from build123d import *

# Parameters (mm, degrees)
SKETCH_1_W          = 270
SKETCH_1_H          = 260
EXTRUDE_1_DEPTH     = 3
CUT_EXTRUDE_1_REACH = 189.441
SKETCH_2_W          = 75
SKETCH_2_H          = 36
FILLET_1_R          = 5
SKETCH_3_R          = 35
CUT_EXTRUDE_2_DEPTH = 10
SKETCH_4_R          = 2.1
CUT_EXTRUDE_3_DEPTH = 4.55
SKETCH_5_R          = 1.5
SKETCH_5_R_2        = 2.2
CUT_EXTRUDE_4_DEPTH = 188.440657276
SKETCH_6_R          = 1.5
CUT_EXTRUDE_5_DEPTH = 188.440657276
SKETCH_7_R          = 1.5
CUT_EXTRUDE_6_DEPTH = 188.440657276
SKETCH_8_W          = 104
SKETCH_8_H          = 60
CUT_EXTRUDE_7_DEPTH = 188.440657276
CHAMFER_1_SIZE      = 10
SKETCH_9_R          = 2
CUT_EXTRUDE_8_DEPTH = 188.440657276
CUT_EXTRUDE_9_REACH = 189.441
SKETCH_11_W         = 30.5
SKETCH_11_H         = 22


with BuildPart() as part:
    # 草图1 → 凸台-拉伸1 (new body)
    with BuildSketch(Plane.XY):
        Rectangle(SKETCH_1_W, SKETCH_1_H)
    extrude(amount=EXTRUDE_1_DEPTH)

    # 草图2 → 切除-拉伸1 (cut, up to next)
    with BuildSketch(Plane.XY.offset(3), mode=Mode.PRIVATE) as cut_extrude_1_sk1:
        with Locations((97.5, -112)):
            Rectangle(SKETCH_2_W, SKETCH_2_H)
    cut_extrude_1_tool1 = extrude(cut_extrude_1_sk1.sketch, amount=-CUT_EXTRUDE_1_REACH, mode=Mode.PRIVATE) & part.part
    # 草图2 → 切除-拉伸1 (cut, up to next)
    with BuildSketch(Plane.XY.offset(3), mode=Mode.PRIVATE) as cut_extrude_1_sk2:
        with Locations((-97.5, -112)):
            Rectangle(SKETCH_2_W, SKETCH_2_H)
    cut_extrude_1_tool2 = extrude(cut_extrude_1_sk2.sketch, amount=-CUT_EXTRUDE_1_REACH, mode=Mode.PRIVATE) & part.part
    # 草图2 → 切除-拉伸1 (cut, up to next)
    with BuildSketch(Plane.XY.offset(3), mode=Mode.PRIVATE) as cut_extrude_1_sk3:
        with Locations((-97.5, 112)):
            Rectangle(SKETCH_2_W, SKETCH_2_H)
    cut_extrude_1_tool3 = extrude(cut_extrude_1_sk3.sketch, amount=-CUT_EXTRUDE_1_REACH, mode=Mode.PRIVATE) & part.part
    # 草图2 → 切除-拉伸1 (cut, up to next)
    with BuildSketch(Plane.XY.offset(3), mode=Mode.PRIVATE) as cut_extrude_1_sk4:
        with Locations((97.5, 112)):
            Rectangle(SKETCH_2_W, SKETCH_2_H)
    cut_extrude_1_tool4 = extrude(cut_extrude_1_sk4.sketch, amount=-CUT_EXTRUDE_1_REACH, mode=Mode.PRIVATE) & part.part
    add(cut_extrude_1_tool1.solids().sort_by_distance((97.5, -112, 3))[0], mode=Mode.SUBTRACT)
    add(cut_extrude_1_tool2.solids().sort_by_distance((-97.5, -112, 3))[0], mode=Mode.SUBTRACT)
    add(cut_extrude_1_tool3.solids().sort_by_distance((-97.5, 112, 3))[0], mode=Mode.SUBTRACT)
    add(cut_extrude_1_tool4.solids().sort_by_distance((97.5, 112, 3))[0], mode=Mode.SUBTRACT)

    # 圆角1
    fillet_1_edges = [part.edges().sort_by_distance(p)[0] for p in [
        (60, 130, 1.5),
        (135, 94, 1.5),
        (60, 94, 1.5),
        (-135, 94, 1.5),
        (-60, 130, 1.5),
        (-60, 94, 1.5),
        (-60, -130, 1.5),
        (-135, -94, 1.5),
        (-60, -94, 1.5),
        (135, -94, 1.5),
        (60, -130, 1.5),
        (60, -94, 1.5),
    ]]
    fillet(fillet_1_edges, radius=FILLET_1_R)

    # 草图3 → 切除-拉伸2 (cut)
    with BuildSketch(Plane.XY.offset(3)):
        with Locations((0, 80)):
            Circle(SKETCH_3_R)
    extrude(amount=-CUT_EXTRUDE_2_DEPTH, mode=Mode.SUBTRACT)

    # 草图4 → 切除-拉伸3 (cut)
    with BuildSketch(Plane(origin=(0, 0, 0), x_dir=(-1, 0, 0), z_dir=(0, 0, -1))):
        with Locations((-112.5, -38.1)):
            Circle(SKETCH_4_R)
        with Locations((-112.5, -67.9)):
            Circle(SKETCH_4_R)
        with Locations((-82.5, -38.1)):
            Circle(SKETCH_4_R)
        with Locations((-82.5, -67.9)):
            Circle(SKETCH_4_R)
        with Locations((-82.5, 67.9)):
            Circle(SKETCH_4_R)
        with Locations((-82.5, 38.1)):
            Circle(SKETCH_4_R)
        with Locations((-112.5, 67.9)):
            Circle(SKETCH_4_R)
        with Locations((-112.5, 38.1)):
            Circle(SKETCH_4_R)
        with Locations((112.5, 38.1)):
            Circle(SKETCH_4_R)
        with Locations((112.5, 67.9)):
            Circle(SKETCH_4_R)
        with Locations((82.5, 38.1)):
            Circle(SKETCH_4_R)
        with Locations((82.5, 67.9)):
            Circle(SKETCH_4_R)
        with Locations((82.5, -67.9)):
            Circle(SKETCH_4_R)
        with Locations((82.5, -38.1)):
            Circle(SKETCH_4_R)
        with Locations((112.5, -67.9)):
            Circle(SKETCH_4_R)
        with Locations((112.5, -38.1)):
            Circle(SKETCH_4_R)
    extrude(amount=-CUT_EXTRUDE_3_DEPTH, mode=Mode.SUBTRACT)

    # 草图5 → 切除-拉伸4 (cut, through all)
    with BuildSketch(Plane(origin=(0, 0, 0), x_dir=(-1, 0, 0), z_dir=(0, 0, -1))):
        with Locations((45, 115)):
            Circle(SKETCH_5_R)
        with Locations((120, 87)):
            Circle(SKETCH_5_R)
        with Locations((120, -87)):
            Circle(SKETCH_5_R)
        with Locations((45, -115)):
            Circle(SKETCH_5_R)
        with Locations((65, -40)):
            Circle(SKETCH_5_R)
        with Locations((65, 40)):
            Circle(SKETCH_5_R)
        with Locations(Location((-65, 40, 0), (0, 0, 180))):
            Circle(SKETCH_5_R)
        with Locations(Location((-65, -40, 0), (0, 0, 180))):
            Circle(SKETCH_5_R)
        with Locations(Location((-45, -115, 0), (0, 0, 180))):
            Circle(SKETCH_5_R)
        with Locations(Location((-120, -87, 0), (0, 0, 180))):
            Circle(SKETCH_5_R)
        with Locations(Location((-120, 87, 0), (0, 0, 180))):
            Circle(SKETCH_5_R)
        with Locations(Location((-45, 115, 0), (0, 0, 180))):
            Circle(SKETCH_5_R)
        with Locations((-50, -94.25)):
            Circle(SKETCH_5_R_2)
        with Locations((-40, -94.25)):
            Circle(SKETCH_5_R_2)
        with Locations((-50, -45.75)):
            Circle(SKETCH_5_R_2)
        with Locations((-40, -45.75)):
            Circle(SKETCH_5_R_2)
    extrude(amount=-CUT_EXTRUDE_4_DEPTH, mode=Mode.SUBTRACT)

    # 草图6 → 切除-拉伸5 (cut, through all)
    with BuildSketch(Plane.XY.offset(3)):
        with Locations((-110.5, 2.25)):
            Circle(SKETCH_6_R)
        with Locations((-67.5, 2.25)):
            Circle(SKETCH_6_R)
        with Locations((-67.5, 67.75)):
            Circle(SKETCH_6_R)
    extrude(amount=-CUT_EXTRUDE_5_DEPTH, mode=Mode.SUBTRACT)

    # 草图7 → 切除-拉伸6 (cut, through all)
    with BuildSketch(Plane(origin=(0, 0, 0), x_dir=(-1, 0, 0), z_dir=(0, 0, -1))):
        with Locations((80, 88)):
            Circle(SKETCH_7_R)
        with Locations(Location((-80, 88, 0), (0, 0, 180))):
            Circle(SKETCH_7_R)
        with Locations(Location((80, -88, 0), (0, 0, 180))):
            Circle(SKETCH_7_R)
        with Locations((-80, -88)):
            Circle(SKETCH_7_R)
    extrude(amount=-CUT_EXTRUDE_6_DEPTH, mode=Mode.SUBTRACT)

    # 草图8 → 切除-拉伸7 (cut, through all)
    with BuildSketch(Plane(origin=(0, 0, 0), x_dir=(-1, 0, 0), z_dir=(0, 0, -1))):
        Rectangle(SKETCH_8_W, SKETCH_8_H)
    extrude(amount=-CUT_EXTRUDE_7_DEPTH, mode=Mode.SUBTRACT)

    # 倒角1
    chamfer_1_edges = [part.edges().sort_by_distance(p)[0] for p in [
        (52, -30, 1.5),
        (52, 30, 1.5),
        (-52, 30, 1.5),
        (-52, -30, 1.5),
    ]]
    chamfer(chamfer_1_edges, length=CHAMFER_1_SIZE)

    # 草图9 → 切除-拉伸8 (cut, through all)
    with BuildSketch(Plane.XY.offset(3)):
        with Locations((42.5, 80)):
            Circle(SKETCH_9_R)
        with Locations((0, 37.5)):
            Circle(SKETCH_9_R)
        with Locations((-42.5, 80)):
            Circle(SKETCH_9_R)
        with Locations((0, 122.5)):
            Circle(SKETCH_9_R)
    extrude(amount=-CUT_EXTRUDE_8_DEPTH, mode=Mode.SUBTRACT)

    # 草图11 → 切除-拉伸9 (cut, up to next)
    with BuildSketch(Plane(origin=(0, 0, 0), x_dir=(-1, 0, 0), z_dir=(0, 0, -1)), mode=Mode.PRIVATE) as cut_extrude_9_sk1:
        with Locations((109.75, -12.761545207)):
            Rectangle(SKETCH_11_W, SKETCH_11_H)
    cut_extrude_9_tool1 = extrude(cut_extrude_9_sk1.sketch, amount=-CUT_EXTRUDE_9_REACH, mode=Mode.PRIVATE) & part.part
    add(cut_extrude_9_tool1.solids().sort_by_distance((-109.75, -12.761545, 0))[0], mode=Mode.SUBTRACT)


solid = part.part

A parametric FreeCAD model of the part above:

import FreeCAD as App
import Part
import Sketcher
from FreeCAD import Vector


def edges_at(feature, points):
    """Names of the edges that pass closest to the given points."""
    edges = feature.Shape.Edges
    near = lambda p: min(range(len(edges)), key=lambda i: edges[i].distToShape(Part.Vertex(*p))[0])
    return sorted({f"Edge{near(p) + 1}" for p in points})

doc = App.newDocument("Part")
body = doc.addObject("PartDesign::Body", "Body")

sketch1 = doc.addObject("Sketcher::SketchObject", "Sketch")
body.addObject(sketch1)
sketch1.AttachmentSupport = (doc.XY_Plane, [""])
sketch1.MapMode = "FlatFace"
sketch1.addGeometry([
    Part.LineSegment(Vector(-135, 130, 0), Vector(-135, -130, 0)),
    Part.LineSegment(Vector(-135, -130, 0), Vector(135, -130, 0)),
    Part.LineSegment(Vector(135, -130, 0), Vector(135, 130, 0)),
    Part.LineSegment(Vector(135, 130, 0), Vector(-135, 130, 0)),
], False)
sketch1.addConstraint([
    Sketcher.Constraint("Coincident", 0, 2, 1, 1),
    Sketcher.Constraint("Coincident", 1, 2, 2, 1),
    Sketcher.Constraint("Coincident", 2, 2, 3, 1),
    Sketcher.Constraint("Coincident", 3, 2, 0, 1),
    Sketcher.Constraint("Vertical", 0),
    Sketcher.Constraint("Horizontal", 1),
    Sketcher.Constraint("Vertical", 2),
    Sketcher.Constraint("Horizontal", 3),
    Sketcher.Constraint("Symmetric", 0, 2, 2, 2, -1, 1),
    Sketcher.Constraint("DistanceX", 1, 1, 1, 2, 270.0),
    Sketcher.Constraint("DistanceY", 0, 2, 0, 1, 260.0),
])
pad1 = doc.addObject("PartDesign::Pad", "Pad")
body.addObject(pad1)
pad1.Profile = sketch1
pad1.Length = 3

sketch2 = doc.addObject("Sketcher::SketchObject", "Sketch001")
body.addObject(sketch2)
sketch2.AttachmentSupport = (doc.XY_Plane, [""])
sketch2.MapMode = "FlatFace"
sketch2.AttachmentOffset = App.Placement(Vector(0, 0, 3), App.Rotation())
sketch2.addGeometry([
    Part.LineSegment(Vector(60, -94, 0), Vector(60, -130, 0)),
    Part.LineSegment(Vector(60, -130, 0), Vector(135, -130, 0)),
    Part.LineSegment(Vector(135, -130, 0), Vector(135, -94, 0)),
    Part.LineSegment(Vector(135, -94, 0), Vector(60, -94, 0)),
], False)
sketch2.addConstraint([
    Sketcher.Constraint("Coincident", 0, 2, 1, 1),
    Sketcher.Constraint("Coincident", 1, 2, 2, 1),
    Sketcher.Constraint("Coincident", 2, 2, 3, 1),
    Sketcher.Constraint("Coincident", 3, 2, 0, 1),
    Sketcher.Constraint("Vertical", 0),
    Sketcher.Constraint("Horizontal", 1),
    Sketcher.Constraint("Vertical", 2),
    Sketcher.Constraint("Horizontal", 3),
    Sketcher.Constraint("DistanceX", 1, 1, 1, 2, 75.0),
    Sketcher.Constraint("DistanceY", 0, 2, 0, 1, 36.0),
    Sketcher.Constraint("DistanceX", -1, 1, 0, 2, 60.0),
    Sketcher.Constraint("DistanceY", 0, 2, -1, 1, 130.0),
])
pocket1 = doc.addObject("PartDesign::Pocket", "Pocket")
body.addObject(pocket1)
pocket1.Profile = sketch2
pocket1.Type = "UpToFirst"

sketch3 = doc.addObject("Sketcher::SketchObject", "Sketch002")
body.addObject(sketch3)
sketch3.AttachmentSupport = (doc.XY_Plane, [""])
sketch3.MapMode = "FlatFace"
sketch3.AttachmentOffset = App.Placement(Vector(0, 0, 3), App.Rotation())
sketch3.addGeometry([
    Part.LineSegment(Vector(-135, -94, 0), Vector(-135, -130, 0)),
    Part.LineSegment(Vector(-135, -130, 0), Vector(-60, -130, 0)),
    Part.LineSegment(Vector(-60, -130, 0), Vector(-60, -94, 0)),
    Part.LineSegment(Vector(-60, -94, 0), Vector(-135, -94, 0)),
], False)
sketch3.addConstraint([
    Sketcher.Constraint("Coincident", 0, 2, 1, 1),
    Sketcher.Constraint("Coincident", 1, 2, 2, 1),
    Sketcher.Constraint("Coincident", 2, 2, 3, 1),
    Sketcher.Constraint("Coincident", 3, 2, 0, 1),
    Sketcher.Constraint("Vertical", 0),
    Sketcher.Constraint("Horizontal", 1),
    Sketcher.Constraint("Vertical", 2),
    Sketcher.Constraint("Horizontal", 3),
    Sketcher.Constraint("DistanceX", 1, 1, 1, 2, 75.0),
    Sketcher.Constraint("DistanceY", 0, 2, 0, 1, 36.0),
    Sketcher.Constraint("DistanceX", 0, 2, -1, 1, 135.0),
    Sketcher.Constraint("DistanceY", 0, 2, -1, 1, 130.0),
])
pocket2 = doc.addObject("PartDesign::Pocket", "Pocket001")
body.addObject(pocket2)
pocket2.Profile = sketch3
pocket2.Type = "UpToFirst"

sketch4 = doc.addObject("Sketcher::SketchObject", "Sketch003")
body.addObject(sketch4)
sketch4.AttachmentSupport = (doc.XY_Plane, [""])
sketch4.MapMode = "FlatFace"
sketch4.AttachmentOffset = App.Placement(Vector(0, 0, 3), App.Rotation())
sketch4.addGeometry([
    Part.LineSegment(Vector(-135, 130, 0), Vector(-135, 94, 0)),
    Part.LineSegment(Vector(-135, 94, 0), Vector(-60, 94, 0)),
    Part.LineSegment(Vector(-60, 94, 0), Vector(-60, 130, 0)),
    Part.LineSegment(Vector(-60, 130, 0), Vector(-135, 130, 0)),
], False)
sketch4.addConstraint([
    Sketcher.Constraint("Coincident", 0, 2, 1, 1),
    Sketcher.Constraint("Coincident", 1, 2, 2, 1),
    Sketcher.Constraint("Coincident", 2, 2, 3, 1),
    Sketcher.Constraint("Coincident", 3, 2, 0, 1),
    Sketcher.Constraint("Vertical", 0),
    Sketcher.Constraint("Horizontal", 1),
    Sketcher.Constraint("Vertical", 2),
    Sketcher.Constraint("Horizontal", 3),
    Sketcher.Constraint("DistanceX", 1, 1, 1, 2, 75.0),
    Sketcher.Constraint("DistanceY", 0, 2, 0, 1, 36.0),
    Sketcher.Constraint("DistanceX", 0, 2, -1, 1, 135.0),
    Sketcher.Constraint("DistanceY", -1, 1, 0, 2, 94.0),
])
pocket3 = doc.addObject("PartDesign::Pocket", "Pocket002")
body.addObject(pocket3)
pocket3.Profile = sketch4
pocket3.Type = "UpToFirst"

sketch5 = doc.addObject("Sketcher::SketchObject", "Sketch004")
body.addObject(sketch5)
sketch5.AttachmentSupport = (doc.XY_Plane, [""])
sketch5.MapMode = "FlatFace"
sketch5.AttachmentOffset = App.Placement(Vector(0, 0, 3), App.Rotation())
sketch5.addGeometry([
    Part.LineSegment(Vector(60, 130, 0), Vector(60, 94, 0)),
    Part.LineSegment(Vector(60, 94, 0), Vector(135, 94, 0)),
    Part.LineSegment(Vector(135, 94, 0), Vector(135, 130, 0)),
    Part.LineSegment(Vector(135, 130, 0), Vector(60, 130, 0)),
], False)
sketch5.addConstraint([
    Sketcher.Constraint("Coincident", 0, 2, 1, 1),
    Sketcher.Constraint("Coincident", 1, 2, 2, 1),
    Sketcher.Constraint("Coincident", 2, 2, 3, 1),
    Sketcher.Constraint("Coincident", 3, 2, 0, 1),
    Sketcher.Constraint("Vertical", 0),
    Sketcher.Constraint("Horizontal", 1),
    Sketcher.Constraint("Vertical", 2),
    Sketcher.Constraint("Horizontal", 3),
    Sketcher.Constraint("DistanceX", 1, 1, 1, 2, 75.0),
    Sketcher.Constraint("DistanceY", 0, 2, 0, 1, 36.0),
    Sketcher.Constraint("DistanceX", -1, 1, 0, 2, 60.0),
    Sketcher.Constraint("DistanceY", -1, 1, 0, 2, 94.0),
])
pocket4 = doc.addObject("PartDesign::Pocket", "Pocket003")
body.addObject(pocket4)
pocket4.Profile = sketch5
pocket4.Type = "UpToFirst"
doc.recompute()

fillet = doc.addObject("PartDesign::Fillet", "Fillet")
body.addObject(fillet)
fillet.Base = (pocket4, edges_at(pocket4, [
    (60, 130, 1.5),
    (135, 94, 1.5),
    (60, 94, 1.5),
    (-135, 94, 1.5),
    (-60, 130, 1.5),
    (-60, 94, 1.5),
    (-60, -130, 1.5),
    (-135, -94, 1.5),
    (-60, -94, 1.5),
    (135, -94, 1.5),
    (60, -130, 1.5),
    (60, -94, 1.5),
]))
fillet.Radius = 5

sketch6 = doc.addObject("Sketcher::SketchObject", "Sketch005")
body.addObject(sketch6)
sketch6.AttachmentSupport = (doc.XY_Plane, [""])
sketch6.MapMode = "FlatFace"
sketch6.AttachmentOffset = App.Placement(Vector(0, 0, 3), App.Rotation())
sketch6.addGeometry(Part.Circle(Vector(0, 80, 0), Vector(0, 0, 1), 35), False)
sketch6.addConstraint([
    Sketcher.Constraint("PointOnObject", 0, 3, -2),
    Sketcher.Constraint("Diameter", 0, 70.0),
    Sketcher.Constraint("DistanceY", -1, 1, 0, 3, 80.0),
])
pocket5 = doc.addObject("PartDesign::Pocket", "Pocket004")
body.addObject(pocket5)
pocket5.Profile = sketch6
pocket5.Length = 10

sketch7 = doc.addObject("Sketcher::SketchObject", "Sketch006")
body.addObject(sketch7)
sketch7.AttachmentSupport = (doc.XY_Plane, [""])
sketch7.MapMode = "FlatFace"
sketch7.addGeometry([
    Part.Circle(Vector(112.5, -38.1, 0), Vector(0, 0, 1), 2.1),
    Part.Circle(Vector(112.5, -67.9, 0), Vector(0, 0, 1), 2.1),
    Part.Circle(Vector(82.5, -38.1, 0), Vector(0, 0, 1), 2.1),
    Part.Circle(Vector(82.5, -67.9, 0), Vector(0, 0, 1), 2.1),
    Part.Circle(Vector(82.5, 67.9, 0), Vector(0, 0, 1), 2.1),
    Part.Circle(Vector(82.5, 38.1, 0), Vector(0, 0, 1), 2.1),
    Part.Circle(Vector(112.5, 67.9, 0), Vector(0, 0, 1), 2.1),
    Part.Circle(Vector(112.5, 38.1, 0), Vector(0, 0, 1), 2.1),
    Part.Circle(Vector(-112.5, 38.1, 0), Vector(0, 0, 1), 2.1),
    Part.Circle(Vector(-112.5, 67.9, 0), Vector(0, 0, 1), 2.1),
    Part.Circle(Vector(-82.5, 38.1, 0), Vector(0, 0, 1), 2.1),
    Part.Circle(Vector(-82.5, 67.9, 0), Vector(0, 0, 1), 2.1),
    Part.Circle(Vector(-82.5, -67.9, 0), Vector(0, 0, 1), 2.1),
    Part.Circle(Vector(-82.5, -38.1, 0), Vector(0, 0, 1), 2.1),
    Part.Circle(Vector(-112.5, -67.9, 0), Vector(0, 0, 1), 2.1),
    Part.Circle(Vector(-112.5, -38.1, 0), Vector(0, 0, 1), 2.1),
], False)
sketch7.addConstraint([
    Sketcher.Constraint("Equal", 0, 1),
    Sketcher.Constraint("Equal", 1, 2),
    Sketcher.Constraint("Equal", 2, 3),
    Sketcher.Constraint("Equal", 3, 4),
    Sketcher.Constraint("Equal", 4, 5),
    Sketcher.Constraint("Equal", 5, 6),
    Sketcher.Constraint("Equal", 6, 7),
    Sketcher.Constraint("Equal", 7, 8),
    Sketcher.Constraint("Equal", 8, 9),
    Sketcher.Constraint("Equal", 9, 10),
    Sketcher.Constraint("Equal", 10, 11),
    Sketcher.Constraint("Equal", 11, 12),
    Sketcher.Constraint("Equal", 12, 13),
    Sketcher.Constraint("Equal", 13, 14),
    Sketcher.Constraint("Equal", 14, 15),
    Sketcher.Constraint("Symmetric", 0, 3, 8, 3, -1, 1),
    Sketcher.Constraint("Symmetric", 1, 3, 9, 3, -1, 1),
    Sketcher.Constraint("Symmetric", 2, 3, 10, 3, -1, 1),
    Sketcher.Constraint("Symmetric", 3, 3, 11, 3, -1, 1),
    Sketcher.Constraint("Symmetric", 4, 3, 12, 3, -1, 1),
    Sketcher.Constraint("Symmetric", 5, 3, 13, 3, -1, 1),
    Sketcher.Constraint("Symmetric", 6, 3, 14, 3, -1, 1),
    Sketcher.Constraint("Symmetric", 7, 3, 15, 3, -1, 1),
    Sketcher.Constraint("Symmetric", 7, 3, 8, 3, -2),
    Sketcher.Constraint("Symmetric", 6, 3, 9, 3, -2),
    Sketcher.Constraint("Symmetric", 5, 3, 10, 3, -2),
    Sketcher.Constraint("Symmetric", 4, 3, 11, 3, -2),
    Sketcher.Constraint("Horizontal", 0, 3, 2, 3),
    Sketcher.Constraint("Horizontal", 1, 3, 3, 3),
    Sketcher.Constraint("Vertical", 0, 3, 1, 3),
    Sketcher.Constraint("Vertical", 2, 3, 3, 3),
    Sketcher.Constraint("Diameter", 0, 4.2),
    Sketcher.Constraint("DistanceX", 2, 3, 0, 3, 30.0),
    Sketcher.Constraint("DistanceY", 2, 3, 4, 3, 106.0),
    Sketcher.Constraint("DistanceX", 8, 3, 5, 3, 195.0),
    Sketcher.Constraint("DistanceY", 0, 3, -1, 1, 38.1),
])
pocket6 = doc.addObject("PartDesign::Pocket", "Pocket005")
body.addObject(pocket6)
pocket6.Profile = sketch7
pocket6.Length = 4.55
pocket6.Reversed = True

sketch8 = doc.addObject("Sketcher::SketchObject", "Sketch007")
body.addObject(sketch8)
sketch8.AttachmentSupport = (doc.XY_Plane, [""])
sketch8.MapMode = "FlatFace"
sketch8.addGeometry([
    Part.Circle(Vector(-45, 115, 0), Vector(0, 0, 1), 1.5),
    Part.Circle(Vector(-120, 87, 0), Vector(0, 0, 1), 1.5),
    Part.Circle(Vector(-120, -87, 0), Vector(0, 0, 1), 1.5),
    Part.Circle(Vector(-45, -115, 0), Vector(0, 0, 1), 1.5),
    Part.Circle(Vector(-65, -40, 0), Vector(0, 0, 1), 1.5),
    Part.Circle(Vector(-65, 40, 0), Vector(0, 0, 1), 1.5),
    Part.Circle(Vector(65, 40, 0), Vector(0, 0, 1), 1.5),
    Part.Circle(Vector(65, -40, 0), Vector(0, 0, 1), 1.5),
    Part.Circle(Vector(45, -115, 0), Vector(0, 0, 1), 1.5),
    Part.Circle(Vector(120, -87, 0), Vector(0, 0, 1), 1.5),
    Part.Circle(Vector(120, 87, 0), Vector(0, 0, 1), 1.5),
    Part.Circle(Vector(45, 115, 0), Vector(0, 0, 1), 1.5),
    Part.Circle(Vector(50, -94.2, 0), Vector(0, 0, 1), 2.2),
    Part.Circle(Vector(40, -94.2, 0), Vector(0, 0, 1), 2.2),
    Part.Circle(Vector(50, -45.8, 0), Vector(0, 0, 1), 2.2),
    Part.Circle(Vector(40, -45.8, 0), Vector(0, 0, 1), 2.2),
], False)
sketch8.addConstraint([
    Sketcher.Constraint("Equal", 0, 1),
    Sketcher.Constraint("Equal", 1, 2),
    Sketcher.Constraint("Equal", 2, 3),
    Sketcher.Constraint("Equal", 3, 4),
    Sketcher.Constraint("Equal", 4, 5),
    Sketcher.Constraint("Equal", 5, 6),
    Sketcher.Constraint("Equal", 6, 7),
    Sketcher.Constraint("Equal", 7, 8),
    Sketcher.Constraint("Equal", 8, 9),
    Sketcher.Constraint("Equal", 9, 10),
    Sketcher.Constraint("Equal", 10, 11),
    Sketcher.Constraint("Equal", 12, 13),
    Sketcher.Constraint("Equal", 13, 14),
    Sketcher.Constraint("Equal", 14, 15),
    Sketcher.Constraint("Symmetric", 4, 3, 6, 3, -1, 1),
    Sketcher.Constraint("Symmetric", 5, 3, 7, 3, -1, 1),
    Sketcher.Constraint("Symmetric", 0, 3, 8, 3, -1, 1),
    Sketcher.Constraint("Symmetric", 1, 3, 9, 3, -1, 1),
    Sketcher.Constraint("Symmetric", 2, 3, 10, 3, -1, 1),
    Sketcher.Constraint("Symmetric", 3, 3, 11, 3, -1, 1),
    Sketcher.Constraint("Symmetric", 5, 3, 6, 3, -2),
    Sketcher.Constraint("Symmetric", 3, 3, 8, 3, -2),
    Sketcher.Constraint("Symmetric", 2, 3, 9, 3, -2),
    Sketcher.Constraint("Horizontal", 12, 3, 13, 3),
    Sketcher.Constraint("Horizontal", 14, 3, 15, 3),
    Sketcher.Constraint("Vertical", 12, 3, 14, 3),
    Sketcher.Constraint("Vertical", 13, 3, 15, 3),
    Sketcher.Constraint("Diameter", 0, 3.0),
    Sketcher.Constraint("Diameter", 12, 4.4),
    Sketcher.Constraint("DistanceX", 0, 3, -1, 1, 45.0),
    Sketcher.Constraint("DistanceY", -1, 1, 0, 3, 115.0),
    Sketcher.Constraint("DistanceX", 1, 3, -1, 1, 120.0),
    Sketcher.Constraint("DistanceY", -1, 1, 1, 3, 87.0),
    Sketcher.Constraint("DistanceX", 4, 3, -1, 1, 65.0),
    Sketcher.Constraint("DistanceY", 4, 3, -1, 1, 40.0),
    Sketcher.Constraint("DistanceX", -1, 1, 12, 3, 50.0),
    Sketcher.Constraint("DistanceX", -1, 1, 13, 3, 40.0),
    Sketcher.Constraint("DistanceY", 12, 3, 14, 3, 48.5),
    Sketcher.Constraint("DistanceY", 12, 3, -1, 1, 94.25),
])
pocket7 = doc.addObject("PartDesign::Pocket", "Pocket006")
body.addObject(pocket7)
pocket7.Profile = sketch8
pocket7.Type = "ThroughAll"
pocket7.Reversed = True

sketch9 = doc.addObject("Sketcher::SketchObject", "Sketch008")
body.addObject(sketch9)
sketch9.AttachmentSupport = (doc.XY_Plane, [""])
sketch9.MapMode = "FlatFace"
sketch9.AttachmentOffset = App.Placement(Vector(0, 0, 3), App.Rotation())
sketch9.addGeometry([
    Part.Circle(Vector(-110.5, 2.2, 0), Vector(0, 0, 1), 1.5),
    Part.Circle(Vector(-67.5, 2.2, 0), Vector(0, 0, 1), 1.5),
    Part.Circle(Vector(-67.5, 67.8, 0), Vector(0, 0, 1), 1.5),
], False)
sketch9.addConstraint([
    Sketcher.Constraint("Equal", 0, 1),
    Sketcher.Constraint("Equal", 1, 2),
    Sketcher.Constraint("Horizontal", 0, 3, 1, 3),
    Sketcher.Constraint("Vertical", 1, 3, 2, 3),
    Sketcher.Constraint("Diameter", 0, 3.0),
    Sketcher.Constraint("DistanceX", 0, 3, 1, 3, 43.0),
    Sketcher.Constraint("DistanceX", 0, 3, -1, 1, 110.5),
    Sketcher.Constraint("DistanceY", 1, 3, 2, 3, 65.5),
    Sketcher.Constraint("DistanceY", -1, 1, 0, 3, 2.25),
])
pocket8 = doc.addObject("PartDesign::Pocket", "Pocket007")
body.addObject(pocket8)
pocket8.Profile = sketch9
pocket8.Type = "ThroughAll"

sketch10 = doc.addObject("Sketcher::SketchObject", "Sketch009")
body.addObject(sketch10)
sketch10.AttachmentSupport = (doc.XY_Plane, [""])
sketch10.MapMode = "FlatFace"
sketch10.addGeometry([
    Part.Circle(Vector(-80, 88, 0), Vector(0, 0, 1), 1.5),
    Part.Circle(Vector(80, 88, 0), Vector(0, 0, 1), 1.5),
    Part.Circle(Vector(-80, -88, 0), Vector(0, 0, 1), 1.5),
    Part.Circle(Vector(80, -88, 0), Vector(0, 0, 1), 1.5),
], False)
sketch10.addConstraint([
    Sketcher.Constraint("Equal", 0, 1),
    Sketcher.Constraint("Equal", 1, 2),
    Sketcher.Constraint("Equal", 2, 3),
    Sketcher.Constraint("Symmetric", 1, 3, 2, 3, -1, 1),
    Sketcher.Constraint("Symmetric", 0, 3, 3, 3, -1, 1),
    Sketcher.Constraint("Symmetric", 0, 3, 1, 3, -2),
    Sketcher.Constraint("Diameter", 0, 3.0),
    Sketcher.Constraint("DistanceX", 0, 3, -1, 1, 80.0),
    Sketcher.Constraint("DistanceY", -1, 1, 0, 3, 88.0),
])
pocket9 = doc.addObject("PartDesign::Pocket", "Pocket008")
body.addObject(pocket9)
pocket9.Profile = sketch10
pocket9.Type = "ThroughAll"
pocket9.Reversed = True

sketch11 = doc.addObject("Sketcher::SketchObject", "Sketch010")
body.addObject(sketch11)
sketch11.AttachmentSupport = (doc.XY_Plane, [""])
sketch11.MapMode = "FlatFace"
sketch11.addGeometry([
    Part.LineSegment(Vector(52, 30, 0), Vector(52, -30, 0)),
    Part.LineSegment(Vector(52, -30, 0), Vector(-52, -30, 0)),
    Part.LineSegment(Vector(-52, -30, 0), Vector(-52, 30, 0)),
    Part.LineSegment(Vector(-52, 30, 0), Vector(52, 30, 0)),
], False)
sketch11.addConstraint([
    Sketcher.Constraint("Coincident", 0, 2, 1, 1),
    Sketcher.Constraint("Coincident", 1, 2, 2, 1),
    Sketcher.Constraint("Coincident", 2, 2, 3, 1),
    Sketcher.Constraint("Coincident", 3, 2, 0, 1),
    Sketcher.Constraint("Vertical", 0),
    Sketcher.Constraint("Horizontal", 1),
    Sketcher.Constraint("Vertical", 2),
    Sketcher.Constraint("Horizontal", 3),
    Sketcher.Constraint("Symmetric", 0, 2, 2, 2, -1, 1),
    Sketcher.Constraint("DistanceX", 1, 2, 1, 1, 104.0),
    Sketcher.Constraint("DistanceY", 0, 2, 0, 1, 60.0),
])
pocket10 = doc.addObject("PartDesign::Pocket", "Pocket009")
body.addObject(pocket10)
pocket10.Profile = sketch11
pocket10.Type = "ThroughAll"
pocket10.Reversed = True
doc.recompute()

chamfer = doc.addObject("PartDesign::Chamfer", "Chamfer")
body.addObject(chamfer)
chamfer.Base = (pocket10, edges_at(pocket10, [
    (52, -30, 1.5),
    (52, 30, 1.5),
    (-52, 30, 1.5),
    (-52, -30, 1.5),
]))
chamfer.Size = 10

sketch12 = doc.addObject("Sketcher::SketchObject", "Sketch011")
body.addObject(sketch12)
sketch12.AttachmentSupport = (doc.XY_Plane, [""])
sketch12.MapMode = "FlatFace"
sketch12.AttachmentOffset = App.Placement(Vector(0, 0, 3), App.Rotation())
sketch12.addGeometry([
    Part.Circle(Vector(42.5, 80, 0), Vector(0, 0, 1), 2),
    Part.Circle(Vector(0, 37.5, 0), Vector(0, 0, 1), 2),
    Part.Circle(Vector(-42.5, 80, 0), Vector(0, 0, 1), 2),
    Part.Circle(Vector(0, 122.5, 0), Vector(0, 0, 1), 2),
], False)
sketch12.addConstraint([
    Sketcher.Constraint("Equal", 0, 1),
    Sketcher.Constraint("Equal", 1, 2),
    Sketcher.Constraint("Equal", 2, 3),
    Sketcher.Constraint("Symmetric", 0, 3, 2, 3, -2),
    Sketcher.Constraint("PointOnObject", 1, 3, -2),
    Sketcher.Constraint("PointOnObject", 3, 3, -2),
    Sketcher.Constraint("Diameter", 0, 4.0),
    Sketcher.Constraint("DistanceY", -1, 1, 0, 3, 80.0),
    Sketcher.Constraint("DistanceX", 2, 3, 0, 3, 85.0),
    Sketcher.Constraint("DistanceY", 1, 3, 3, 3, 85.0),
    Sketcher.Constraint("DistanceY", -1, 1, 1, 3, 37.5),
])
pocket11 = doc.addObject("PartDesign::Pocket", "Pocket010")
body.addObject(pocket11)
pocket11.Profile = sketch12
pocket11.Type = "ThroughAll"

sketch13 = doc.addObject("Sketcher::SketchObject", "Sketch012")
body.addObject(sketch13)
sketch13.AttachmentSupport = (doc.XY_Plane, [""])
sketch13.MapMode = "FlatFace"
sketch13.addGeometry([
    Part.LineSegment(Vector(-94, -2, 0), Vector(-94, -24, 0)),
    Part.LineSegment(Vector(-94, -24, 0), Vector(-125, -24, 0)),
    Part.LineSegment(Vector(-125, -24, 0), Vector(-125, -2, 0)),
    Part.LineSegment(Vector(-125, -2, 0), Vector(-94, -2, 0)),
], False)
sketch13.addConstraint([
    Sketcher.Constraint("Coincident", 0, 2, 1, 1),
    Sketcher.Constraint("Coincident", 1, 2, 2, 1),
    Sketcher.Constraint("Coincident", 2, 2, 3, 1),
    Sketcher.Constraint("Coincident", 3, 2, 0, 1),
    Sketcher.Constraint("Vertical", 0),
    Sketcher.Constraint("Horizontal", 1),
    Sketcher.Constraint("Vertical", 2),
    Sketcher.Constraint("Horizontal", 3),
    Sketcher.Constraint("DistanceY", 0, 2, 0, 1, 22.0),
    Sketcher.Constraint("DistanceX", 1, 2, 1, 1, 30.5),
    Sketcher.Constraint("DistanceX", 1, 2, -1, 1, 125.0),
    Sketcher.Constraint("DistanceY", 0, 2, -1, 1, 23.761545),
])
pocket12 = doc.addObject("PartDesign::Pocket", "Pocket011")
body.addObject(pocket12)
pocket12.Profile = sketch13
pocket12.Type = "UpToFirst"
pocket12.Reversed = True

doc.recompute()
